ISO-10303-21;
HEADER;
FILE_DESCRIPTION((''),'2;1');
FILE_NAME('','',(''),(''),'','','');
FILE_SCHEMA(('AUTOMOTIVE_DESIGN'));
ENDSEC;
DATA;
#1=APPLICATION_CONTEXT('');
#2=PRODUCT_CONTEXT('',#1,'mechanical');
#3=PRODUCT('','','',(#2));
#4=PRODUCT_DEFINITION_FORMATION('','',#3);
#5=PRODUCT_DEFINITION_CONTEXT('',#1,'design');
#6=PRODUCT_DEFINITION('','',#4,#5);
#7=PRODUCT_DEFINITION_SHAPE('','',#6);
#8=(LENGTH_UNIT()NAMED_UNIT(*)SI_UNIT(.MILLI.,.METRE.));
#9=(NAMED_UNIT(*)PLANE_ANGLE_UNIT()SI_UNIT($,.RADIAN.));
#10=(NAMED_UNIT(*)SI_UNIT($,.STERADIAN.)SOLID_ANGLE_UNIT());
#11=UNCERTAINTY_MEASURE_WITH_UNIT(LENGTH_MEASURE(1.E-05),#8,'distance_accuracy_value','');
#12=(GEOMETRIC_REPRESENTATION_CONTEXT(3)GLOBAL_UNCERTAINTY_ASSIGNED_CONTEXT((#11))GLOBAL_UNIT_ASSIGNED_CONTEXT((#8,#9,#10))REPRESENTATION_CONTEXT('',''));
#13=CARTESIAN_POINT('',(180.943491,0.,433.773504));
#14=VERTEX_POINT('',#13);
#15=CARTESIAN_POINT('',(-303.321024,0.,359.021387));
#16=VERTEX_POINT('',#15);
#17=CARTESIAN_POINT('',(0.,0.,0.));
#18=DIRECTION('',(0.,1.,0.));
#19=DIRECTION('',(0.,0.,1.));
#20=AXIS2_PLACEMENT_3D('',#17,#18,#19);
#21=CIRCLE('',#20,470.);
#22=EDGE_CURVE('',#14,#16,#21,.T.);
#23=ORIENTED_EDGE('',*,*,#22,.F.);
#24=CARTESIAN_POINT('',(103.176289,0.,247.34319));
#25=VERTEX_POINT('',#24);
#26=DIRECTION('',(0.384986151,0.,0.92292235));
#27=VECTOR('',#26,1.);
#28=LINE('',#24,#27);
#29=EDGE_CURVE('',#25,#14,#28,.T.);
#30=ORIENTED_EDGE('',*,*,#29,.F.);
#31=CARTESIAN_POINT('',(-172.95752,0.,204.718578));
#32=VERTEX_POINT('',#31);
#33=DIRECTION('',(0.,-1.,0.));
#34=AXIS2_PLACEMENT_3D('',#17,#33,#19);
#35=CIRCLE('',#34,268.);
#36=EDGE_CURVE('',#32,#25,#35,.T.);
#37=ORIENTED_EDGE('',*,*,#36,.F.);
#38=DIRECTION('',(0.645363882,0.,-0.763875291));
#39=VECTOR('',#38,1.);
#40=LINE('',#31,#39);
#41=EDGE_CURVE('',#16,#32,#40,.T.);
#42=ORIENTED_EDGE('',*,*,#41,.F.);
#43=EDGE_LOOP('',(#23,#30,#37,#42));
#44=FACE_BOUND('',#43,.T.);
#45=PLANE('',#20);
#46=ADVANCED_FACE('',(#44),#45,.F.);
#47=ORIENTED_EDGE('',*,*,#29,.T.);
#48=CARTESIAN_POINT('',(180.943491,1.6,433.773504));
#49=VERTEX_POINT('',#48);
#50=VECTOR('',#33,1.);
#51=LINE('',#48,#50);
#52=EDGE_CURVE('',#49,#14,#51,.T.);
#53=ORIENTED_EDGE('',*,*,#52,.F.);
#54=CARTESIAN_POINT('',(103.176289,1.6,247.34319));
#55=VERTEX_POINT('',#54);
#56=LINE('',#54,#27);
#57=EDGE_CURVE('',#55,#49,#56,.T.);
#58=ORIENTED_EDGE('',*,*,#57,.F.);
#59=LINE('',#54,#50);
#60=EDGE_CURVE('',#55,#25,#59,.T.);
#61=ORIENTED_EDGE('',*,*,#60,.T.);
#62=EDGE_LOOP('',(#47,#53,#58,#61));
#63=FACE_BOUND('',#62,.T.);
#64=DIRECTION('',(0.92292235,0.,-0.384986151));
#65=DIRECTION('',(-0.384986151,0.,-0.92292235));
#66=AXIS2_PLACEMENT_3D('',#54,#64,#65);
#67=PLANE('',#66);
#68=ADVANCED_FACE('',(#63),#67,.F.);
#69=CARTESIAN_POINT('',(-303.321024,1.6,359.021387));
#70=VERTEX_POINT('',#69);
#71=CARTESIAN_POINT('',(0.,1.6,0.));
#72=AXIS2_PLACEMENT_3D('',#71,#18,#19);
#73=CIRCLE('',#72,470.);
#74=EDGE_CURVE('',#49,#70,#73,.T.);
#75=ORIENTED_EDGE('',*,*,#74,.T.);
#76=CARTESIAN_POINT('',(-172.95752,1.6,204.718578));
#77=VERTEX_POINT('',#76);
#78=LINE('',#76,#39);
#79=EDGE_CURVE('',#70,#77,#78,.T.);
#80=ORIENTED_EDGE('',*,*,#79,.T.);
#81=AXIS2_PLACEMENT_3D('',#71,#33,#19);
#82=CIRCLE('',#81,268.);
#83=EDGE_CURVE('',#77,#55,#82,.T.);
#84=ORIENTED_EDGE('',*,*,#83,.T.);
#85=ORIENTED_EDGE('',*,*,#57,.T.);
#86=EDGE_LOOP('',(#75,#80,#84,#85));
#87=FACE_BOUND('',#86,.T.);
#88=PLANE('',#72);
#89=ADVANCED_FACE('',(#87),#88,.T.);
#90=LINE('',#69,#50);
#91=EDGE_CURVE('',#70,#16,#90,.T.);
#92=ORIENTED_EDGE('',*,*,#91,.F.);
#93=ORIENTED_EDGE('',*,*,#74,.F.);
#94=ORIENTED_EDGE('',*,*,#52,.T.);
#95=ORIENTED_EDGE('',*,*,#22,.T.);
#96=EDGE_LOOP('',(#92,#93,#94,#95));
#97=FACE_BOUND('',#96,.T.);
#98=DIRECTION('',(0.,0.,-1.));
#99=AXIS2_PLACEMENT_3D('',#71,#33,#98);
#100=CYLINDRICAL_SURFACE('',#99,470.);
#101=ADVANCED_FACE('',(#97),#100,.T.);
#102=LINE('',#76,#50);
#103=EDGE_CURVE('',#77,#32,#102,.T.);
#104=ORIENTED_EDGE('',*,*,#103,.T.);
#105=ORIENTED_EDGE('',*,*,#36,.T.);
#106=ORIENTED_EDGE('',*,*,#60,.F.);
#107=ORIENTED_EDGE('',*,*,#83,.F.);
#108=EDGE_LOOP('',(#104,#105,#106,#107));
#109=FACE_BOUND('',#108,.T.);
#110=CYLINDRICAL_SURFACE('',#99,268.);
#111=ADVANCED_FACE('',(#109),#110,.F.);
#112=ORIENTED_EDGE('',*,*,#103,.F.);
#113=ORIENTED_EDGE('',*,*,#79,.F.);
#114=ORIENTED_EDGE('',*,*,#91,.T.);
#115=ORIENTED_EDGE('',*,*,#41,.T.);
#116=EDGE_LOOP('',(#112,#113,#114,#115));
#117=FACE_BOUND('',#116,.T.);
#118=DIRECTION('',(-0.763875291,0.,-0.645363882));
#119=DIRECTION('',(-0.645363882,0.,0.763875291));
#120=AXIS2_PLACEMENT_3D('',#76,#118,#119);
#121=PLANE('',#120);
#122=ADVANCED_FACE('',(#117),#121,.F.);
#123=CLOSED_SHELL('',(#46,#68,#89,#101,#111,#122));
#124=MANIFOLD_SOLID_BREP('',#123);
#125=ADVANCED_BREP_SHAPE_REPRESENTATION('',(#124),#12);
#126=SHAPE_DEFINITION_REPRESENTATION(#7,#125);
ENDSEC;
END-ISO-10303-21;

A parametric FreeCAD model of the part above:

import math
import FreeCAD as App
import Part
import Sketcher
from FreeCAD import Vector

doc = App.newDocument("Part")
body = doc.addObject("PartDesign::Body", "Body")

sketch1 = body.newObject("Sketcher::SketchObject", "Sketch")
sketch1.AttachmentSupport = (doc.getObject("XZ_Plane"), [""])
sketch1.MapMode = "FlatFace"
sketch1.addGeometry(Part.LineSegment(Vector(-303.321024, 359.021387, 0), Vector(-172.95752, 204.718578, 0)), False)
sketch1.addGeometry(Part.ArcOfCircle(Part.Circle(Vector(0, 0, 0), Vector(0, 0, 1), 268), math.radians(130.192964), math.radians(427.357119)), False)
sketch1.addGeometry(Part.LineSegment(Vector(103.176289, 247.34319, 0), Vector(180.943491, 433.773504, 0)), False)
sketch1.addGeometry(Part.ArcOfCircle(Part.Circle(Vector(0, 0, 0), Vector(0, 0, 1), 470), math.radians(130.192964), math.radians(427.357119)), False)
sketch1.addConstraint(Sketcher.Constraint("Coincident", 0, 2, 1, 1))
sketch1.addConstraint(Sketcher.Constraint("Coincident", 1, 2, 2, 1))
sketch1.addConstraint(Sketcher.Constraint("Coincident", 2, 2, 3, 2))
sketch1.addConstraint(Sketcher.Constraint("Coincident", 3, 1, 0, 1))
sketch1.addConstraint(Sketcher.Constraint("Coincident", 1, 3, -1, 1))
sketch1.addConstraint(Sketcher.Constraint("Coincident", 3, 3, -1, 1))
sketch1.addConstraint(Sketcher.Constraint("Radius", 1, 268.0))
sketch1.addConstraint(Sketcher.Constraint("Radius", 3, 470.0))
sketch1.addConstraint(Sketcher.Constraint("DistanceX", 0, 2, -1, 1, 172.95752))
sketch1.addConstraint(Sketcher.Constraint("DistanceX", -1, 1, 1, 2, 103.176289))
sketch1.addConstraint(Sketcher.Constraint("DistanceX", -1, 1, 2, 2, 180.943491))
sketch1.addConstraint(Sketcher.Constraint("DistanceY", 0, 2, 3, 1, 154.302809))
pad1 = body.newObject("PartDesign::Pad", "Pad")
pad1.Profile = sketch1
pad1.Length = 1.6
pad1.Reversed = True

doc.recompute()
